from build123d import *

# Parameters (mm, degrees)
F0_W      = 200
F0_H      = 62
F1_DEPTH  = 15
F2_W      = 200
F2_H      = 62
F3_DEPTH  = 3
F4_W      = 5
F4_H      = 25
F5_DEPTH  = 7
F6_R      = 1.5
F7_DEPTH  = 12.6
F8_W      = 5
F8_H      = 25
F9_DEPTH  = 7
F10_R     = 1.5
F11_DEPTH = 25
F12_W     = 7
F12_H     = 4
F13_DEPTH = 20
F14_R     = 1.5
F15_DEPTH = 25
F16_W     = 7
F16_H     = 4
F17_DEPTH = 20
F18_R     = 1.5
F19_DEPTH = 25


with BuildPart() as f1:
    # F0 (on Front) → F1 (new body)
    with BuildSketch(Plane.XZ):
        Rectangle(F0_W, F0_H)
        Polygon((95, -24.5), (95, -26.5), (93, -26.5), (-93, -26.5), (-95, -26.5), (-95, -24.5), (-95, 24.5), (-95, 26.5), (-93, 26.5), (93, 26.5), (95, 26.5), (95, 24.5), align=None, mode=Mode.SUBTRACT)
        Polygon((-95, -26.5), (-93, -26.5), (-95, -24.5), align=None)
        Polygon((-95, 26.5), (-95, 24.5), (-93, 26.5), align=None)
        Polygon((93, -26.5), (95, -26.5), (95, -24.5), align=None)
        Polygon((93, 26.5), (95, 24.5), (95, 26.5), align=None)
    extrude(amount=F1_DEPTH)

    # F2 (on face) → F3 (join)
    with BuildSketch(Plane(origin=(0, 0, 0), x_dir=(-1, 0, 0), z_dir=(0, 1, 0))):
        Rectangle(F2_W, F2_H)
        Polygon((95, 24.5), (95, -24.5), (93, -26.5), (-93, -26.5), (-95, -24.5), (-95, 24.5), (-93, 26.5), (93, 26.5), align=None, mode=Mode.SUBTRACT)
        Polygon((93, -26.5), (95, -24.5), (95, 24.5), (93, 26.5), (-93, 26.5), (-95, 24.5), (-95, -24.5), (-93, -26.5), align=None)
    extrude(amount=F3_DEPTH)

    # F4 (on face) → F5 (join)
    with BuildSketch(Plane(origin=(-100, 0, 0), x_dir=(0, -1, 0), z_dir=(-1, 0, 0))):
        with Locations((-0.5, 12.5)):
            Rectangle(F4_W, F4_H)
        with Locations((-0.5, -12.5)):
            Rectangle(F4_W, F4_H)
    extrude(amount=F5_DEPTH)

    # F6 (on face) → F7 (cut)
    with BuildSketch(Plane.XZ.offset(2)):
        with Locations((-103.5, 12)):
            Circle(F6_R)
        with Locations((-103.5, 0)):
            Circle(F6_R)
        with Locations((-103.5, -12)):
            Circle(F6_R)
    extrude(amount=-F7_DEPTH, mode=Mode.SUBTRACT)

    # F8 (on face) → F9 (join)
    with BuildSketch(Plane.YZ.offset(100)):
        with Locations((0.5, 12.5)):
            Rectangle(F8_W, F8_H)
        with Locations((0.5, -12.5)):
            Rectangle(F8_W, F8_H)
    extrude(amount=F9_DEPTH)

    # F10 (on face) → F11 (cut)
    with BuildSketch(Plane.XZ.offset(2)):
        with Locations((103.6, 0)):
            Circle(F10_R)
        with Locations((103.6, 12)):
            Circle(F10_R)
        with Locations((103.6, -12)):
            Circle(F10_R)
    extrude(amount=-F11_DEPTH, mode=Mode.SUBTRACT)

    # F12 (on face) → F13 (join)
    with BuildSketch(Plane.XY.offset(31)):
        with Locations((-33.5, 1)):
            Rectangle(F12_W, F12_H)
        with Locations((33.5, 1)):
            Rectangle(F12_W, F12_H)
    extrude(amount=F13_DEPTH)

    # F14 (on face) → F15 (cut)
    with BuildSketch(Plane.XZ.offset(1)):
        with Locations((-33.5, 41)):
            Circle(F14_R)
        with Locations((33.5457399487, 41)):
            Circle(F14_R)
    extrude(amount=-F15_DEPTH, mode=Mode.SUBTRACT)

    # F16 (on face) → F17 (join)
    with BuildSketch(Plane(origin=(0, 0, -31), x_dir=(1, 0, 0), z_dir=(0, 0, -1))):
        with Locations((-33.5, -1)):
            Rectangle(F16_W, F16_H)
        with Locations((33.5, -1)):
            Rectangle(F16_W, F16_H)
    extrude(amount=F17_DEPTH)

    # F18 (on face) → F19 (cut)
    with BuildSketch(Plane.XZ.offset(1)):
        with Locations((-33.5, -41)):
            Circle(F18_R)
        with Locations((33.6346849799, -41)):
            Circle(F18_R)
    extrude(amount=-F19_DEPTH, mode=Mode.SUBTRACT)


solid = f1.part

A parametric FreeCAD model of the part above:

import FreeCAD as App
import Part
import Sketcher
from FreeCAD import Vector
Q = App.Units.Quantity


def add_polygon(sketch, points):
    """Adds a closed chain of lines whose ends are joined by coincident constraints."""
    first, n = sketch.GeometryCount, len(points)
    for a, b in zip(points, points[1:] + points[:1]):
        sketch.addGeometry(Part.LineSegment(App.Vector(*a, 0), App.Vector(*b, 0)), False)
    for i in range(n):
        sketch.addConstraint(Sketcher.Constraint("Coincident", first + i, 2, first + (i + 1) % n, 1))

doc = App.newDocument("Part")
body = doc.addObject("PartDesign::Body", "Body")

# Sketch on XZ plane
sketch1 = body.newObject("Sketcher::SketchObject", "Sketch")
sketch1.AttachmentSupport = (doc.getObject("XZ_Plane"), [""])
sketch1.MapMode = "FlatFace"
add_polygon(sketch1, [(-100, 31), (-100, -31), (100, -31), (100, 31)])  # lines 0-3
add_polygon(sketch1, [(95, 24.5), (95, -24.5), (93, -26.5), (-93, -26.5), (-95, -24.5), (-95, 24.5), (-93, 26.5), (93, 26.5)])  # lines 4-11
sketch1.addConstraint(Sketcher.Constraint("Vertical", 0))
sketch1.addConstraint(Sketcher.Constraint("Horizontal", 1))
sketch1.addConstraint(Sketcher.Constraint("Vertical", 2))
sketch1.addConstraint(Sketcher.Constraint("Horizontal", 3))
sketch1.addConstraint(Sketcher.Constraint("Vertical", 4))
sketch1.addConstraint(Sketcher.Constraint("Horizontal", 6))
sketch1.addConstraint(Sketcher.Constraint("Vertical", 8))
sketch1.addConstraint(Sketcher.Constraint("Horizontal", 10))
sketch1.addConstraint(Sketcher.Constraint("Symmetric", 0, 2, 2, 2, -1, 1))
sketch1.addConstraint(Sketcher.Constraint("Symmetric", 4, 2, 8, 2, -1, 1))
sketch1.addConstraint(Sketcher.Constraint("Symmetric", 5, 2, 9, 2, -1, 1))
sketch1.addConstraint(Sketcher.Constraint("Perpendicular", 5, 7))
sketch1.addConstraint(Sketcher.Constraint("Perpendicular", 9, 11))
sketch1.addConstraint(Sketcher.Constraint("Horizontal", 4, 2, 7, 2))
sketch1.addConstraint(Sketcher.Constraint("Horizontal", 8, 2, 11, 2))
sketch1.addConstraint(Sketcher.Constraint("Vertical", 6, 2, 9, 2))
sketch1.addConstraint(Sketcher.Constraint("DistanceX", 1, 1, 1, 2, Q("200 mm")))
sketch1.addConstraint(Sketcher.Constraint("DistanceX", 6, 2, 6, 1, Q("186 mm")))
sketch1.addConstraint(Sketcher.Constraint("DistanceY", 0, 2, 0, 1, Q("62 mm")))
sketch1.addConstraint(Sketcher.Constraint("DistanceY", 4, 2, 4, 1, Q("49 mm")))
sketch1.addConstraint(Sketcher.Constraint("DistanceX", -1, 1, 4, 2, Q("95 mm")))
pad1 = body.newObject("PartDesign::Pad", "Pad")
pad1.Profile = sketch1
pad1.Length = 15

# Sketch on XZ plane
sketch2 = body.newObject("Sketcher::SketchObject", "Sketch001")
sketch2.AttachmentSupport = (doc.getObject("XZ_Plane"), [""])
sketch2.MapMode = "FlatFace"
add_polygon(sketch2, [(100, 31), (100, -31), (-100, -31), (-100, 31)])  # lines 0-3
sketch2.addConstraint(Sketcher.Constraint("Vertical", 0))
sketch2.addConstraint(Sketcher.Constraint("Horizontal", 1))
sketch2.addConstraint(Sketcher.Constraint("Vertical", 2))
sketch2.addConstraint(Sketcher.Constraint("Horizontal", 3))
sketch2.addConstraint(Sketcher.Constraint("Symmetric", 0, 2, 2, 2, -1, 1))
sketch2.addConstraint(Sketcher.Constraint("DistanceX", 1, 2, 1, 1, Q("200 mm")))
sketch2.addConstraint(Sketcher.Constraint("DistanceY", 0, 2, 0, 1, Q("62 mm")))
pad2 = body.newObject("PartDesign::Pad", "Pad001")
pad2.Profile = sketch2
pad2.Length = 3
pad2.Reversed = True

# Sketch on YZ plane
sketch3 = body.newObject("Sketcher::SketchObject", "Sketch002")
sketch3.AttachmentSupport = (doc.getObject("YZ_Plane"), [""])
sketch3.MapMode = "FlatFace"
sketch3.AttachmentOffset = App.Placement(Vector(0, 0, -100), App.Rotation())
add_polygon(sketch3, [(3, 25), (3, -25), (-2, -25), (-2, 25)])  # lines 0-3
sketch3.addConstraint(Sketcher.Constraint("Vertical", 0))
sketch3.addConstraint(Sketcher.Constraint("Horizontal", 1))
sketch3.addConstraint(Sketcher.Constraint("Vertical", 2))
sketch3.addConstraint(Sketcher.Constraint("Horizontal", 3))
sketch3.addConstraint(Sketcher.Constraint("DistanceX", 1, 2, 1, 1, Q("5 mm")))
sketch3.addConstraint(Sketcher.Constraint("DistanceY", 0, 2, 0, 1, Q("50 mm")))
sketch3.addConstraint(Sketcher.Constraint("DistanceX", -1, 1, 0, 2, Q("3 mm")))
sketch3.addConstraint(Sketcher.Constraint("DistanceY", 0, 2, -1, 1, Q("25 mm")))
pad3 = body.newObject("PartDesign::Pad", "Pad002")
pad3.Profile = sketch3
pad3.Length = 7
pad3.Reversed = True

# Sketch on XZ plane
sketch4 = body.newObject("Sketcher::SketchObject", "Sketch003")
sketch4.AttachmentSupport = (doc.getObject("XZ_Plane"), [""])
sketch4.MapMode = "FlatFace"
sketch4.AttachmentOffset = App.Placement(Vector(0, 0, 2), App.Rotation())
sketch4.addGeometry(Part.Circle(Vector(-103.5, 12, 0), Vector(0, 0, 1), 1.5), False)
sketch4.addGeometry(Part.Circle(Vector(-103.5, 0, 0), Vector(0, 0, 1), 1.5), False)
sketch4.addGeometry(Part.Circle(Vector(-103.5, -12, 0), Vector(0, 0, 1), 1.5), False)
sketch4.addConstraint(Sketcher.Constraint("Equal", 0, 1))
sketch4.addConstraint(Sketcher.Constraint("Equal", 1, 2))
sketch4.addConstraint(Sketcher.Constraint("Symmetric", 0, 3, 2, 3, -1))
sketch4.addConstraint(Sketcher.Constraint("PointOnObject", 1, 3, -1))
sketch4.addConstraint(Sketcher.Constraint("Vertical", 0, 3, 1, 3))
sketch4.addConstraint(Sketcher.Constraint("Diameter", 0, Q("3 mm")))
sketch4.addConstraint(Sketcher.Constraint("DistanceY", -1, 1, 0, 3, Q("12 mm")))
sketch4.addConstraint(Sketcher.Constraint("DistanceX", 0, 3, -1, 1, Q("103.5 mm")))
pocket1 = body.newObject("PartDesign::Pocket", "Pocket")
pocket1.Profile = sketch4
pocket1.Length = 12.6

# Sketch on YZ plane
sketch5 = body.newObject("Sketcher::SketchObject", "Sketch004")
sketch5.AttachmentSupport = (doc.getObject("YZ_Plane"), [""])
sketch5.MapMode = "FlatFace"
sketch5.AttachmentOffset = App.Placement(Vector(0, 0, 100), App.Rotation())
add_polygon(sketch5, [(-2, 25), (-2, -25), (3, -25), (3, 25)])  # lines 0-3
sketch5.addConstraint(Sketcher.Constraint("Vertical", 0))
sketch5.addConstraint(Sketcher.Constraint("Horizontal", 1))
sketch5.addConstraint(Sketcher.Constraint("Vertical", 2))
sketch5.addConstraint(Sketcher.Constraint("Horizontal", 3))
sketch5.addConstraint(Sketcher.Constraint("DistanceX", 1, 1, 1, 2, Q("5 mm")))
sketch5.addConstraint(Sketcher.Constraint("DistanceY", 0, 2, 0, 1, Q("50 mm")))
sketch5.addConstraint(Sketcher.Constraint("DistanceX", 0, 2, -1, 1, Q("2 mm")))
sketch5.addConstraint(Sketcher.Constraint("DistanceY", 0, 2, -1, 1, Q("25 mm")))
pad4 = body.newObject("PartDesign::Pad", "Pad003")
pad4.Profile = sketch5
pad4.Length = 7

# Sketch on XZ plane
sketch6 = body.newObject("Sketcher::SketchObject", "Sketch005")
sketch6.AttachmentSupport = (doc.getObject("XZ_Plane"), [""])
sketch6.MapMode = "FlatFace"
sketch6.AttachmentOffset = App.Placement(Vector(0, 0, 2), App.Rotation())
sketch6.addGeometry(Part.Circle(Vector(103.6, 0, 0), Vector(0, 0, 1), 1.5), False)
sketch6.addGeometry(Part.Circle(Vector(103.6, 12, 0), Vector(0, 0, 1), 1.5), False)
sketch6.addGeometry(Part.Circle(Vector(103.6, -12, 0), Vector(0, 0, 1), 1.5), False)
sketch6.addConstraint(Sketcher.Constraint("Equal", 0, 1))
sketch6.addConstraint(Sketcher.Constraint("Equal", 1, 2))
sketch6.addConstraint(Sketcher.Constraint("Symmetric", 1, 3, 2, 3, -1))
sketch6.addConstraint(Sketcher.Constraint("PointOnObject", 0, 3, -1))
sketch6.addConstraint(Sketcher.Constraint("Vertical", 0, 3, 1, 3))
sketch6.addConstraint(Sketcher.Constraint("Diameter", 0, Q("3 mm")))
sketch6.addConstraint(Sketcher.Constraint("DistanceY", -1, 1, 1, 3, Q("12 mm")))
sketch6.addConstraint(Sketcher.Constraint("DistanceX", -1, 1, 0, 3, Q("103.6 mm")))
pocket2 = body.newObject("PartDesign::Pocket", "Pocket001")
pocket2.Profile = sketch6
pocket2.Length = 25

# Sketch on XY plane
sketch7 = body.newObject("Sketcher::SketchObject", "Sketch006")
sketch7.AttachmentSupport = (doc.getObject("XY_Plane"), [""])
sketch7.MapMode = "FlatFace"
sketch7.AttachmentOffset = App.Placement(Vector(0, 0, 31), App.Rotation())
add_polygon(sketch7, [(-37, 3), (-37, -1), (-30, -1), (-30, 3)])  # lines 0-3
add_polygon(sketch7, [(30, 3), (30, -1), (37, -1), (37, 3)])  # lines 4-7
sketch7.addConstraint(Sketcher.Constraint("Vertical", 0))
sketch7.addConstraint(Sketcher.Constraint("Horizontal", 1))
sketch7.addConstraint(Sketcher.Constraint("Vertical", 2))
sketch7.addConstraint(Sketcher.Constraint("Horizontal", 3))
sketch7.addConstraint(Sketcher.Constraint("Vertical", 4))
sketch7.addConstraint(Sketcher.Constraint("Horizontal", 5))
sketch7.addConstraint(Sketcher.Constraint("Vertical", 6))
sketch7.addConstraint(Sketcher.Constraint("Horizontal", 7))
sketch7.addConstraint(Sketcher.Constraint("Symmetric", 1, 2, 4, 2, -2))
sketch7.addConstraint(Sketcher.Constraint("Symmetric", 3, 2, 6, 2, -2))
sketch7.addConstraint(Sketcher.Constraint("DistanceX", 1, 1, 1, 2, Q("7 mm")))
sketch7.addConstraint(Sketcher.Constraint("DistanceY", 0, 2, 0, 1, Q("4 mm")))
sketch7.addConstraint(Sketcher.Constraint("DistanceX", 0, 2, -1, 1, Q("37 mm")))
sketch7.addConstraint(Sketcher.Constraint("DistanceY", 0, 2, -1, 1, Q("1 mm")))
pad5 = body.newObject("PartDesign::Pad", "Pad004")
pad5.Profile = sketch7
pad5.Length = 20

# Sketch on XZ plane
sketch8 = body.newObject("Sketcher::SketchObject", "Sketch007")
sketch8.AttachmentSupport = (doc.getObject("XZ_Plane"), [""])
sketch8.MapMode = "FlatFace"
sketch8.AttachmentOffset = App.Placement(Vector(0, 0, 1), App.Rotation())
sketch8.addGeometry(Part.Circle(Vector(-33.5, 41, 0), Vector(0, 0, 1), 1.5), False)
sketch8.addGeometry(Part.Circle(Vector(33.54574, 41, 0), Vector(0, 0, 1), 1.5), False)
sketch8.addConstraint(Sketcher.Constraint("Equal", 0, 1))
sketch8.addConstraint(Sketcher.Constraint("Horizontal", 0, 3, 1, 3))
sketch8.addConstraint(Sketcher.Constraint("Diameter", 0, Q("3 mm")))
sketch8.addConstraint(Sketcher.Constraint("DistanceY", -1, 1, 0, 3, Q("41 mm")))
sketch8.addConstraint(Sketcher.Constraint("DistanceX", 0, 3, -1, 1, Q("33.5 mm")))
sketch8.addConstraint(Sketcher.Constraint("DistanceX", -1, 1, 1, 3, Q("33.54574 mm")))
pocket3 = body.newObject("PartDesign::Pocket", "Pocket002")
pocket3.Profile = sketch8
pocket3.Length = 25

# Sketch on XY plane
sketch9 = body.newObject("Sketcher::SketchObject", "Sketch008")
sketch9.AttachmentSupport = (doc.getObject("XY_Plane"), [""])
sketch9.MapMode = "FlatFace"
sketch9.AttachmentOffset = App.Placement(Vector(0, 0, -31), App.Rotation())
add_polygon(sketch9, [(-37, -1), (-37, 3), (-30, 3), (-30, -1)])  # lines 0-3
add_polygon(sketch9, [(30, -1), (30, 3), (37, 3), (37, -1)])  # lines 4-7
sketch9.addConstraint(Sketcher.Constraint("Vertical", 0))
sketch9.addConstraint(Sketcher.Constraint("Horizontal", 1))
sketch9.addConstraint(Sketcher.Constraint("Vertical", 2))
sketch9.addConstraint(Sketcher.Constraint("Horizontal", 3))
sketch9.addConstraint(Sketcher.Constraint("Vertical", 4))
sketch9.addConstraint(Sketcher.Constraint("Horizontal", 5))
sketch9.addConstraint(Sketcher.Constraint("Vertical", 6))
sketch9.addConstraint(Sketcher.Constraint("Horizontal", 7))
sketch9.addConstraint(Sketcher.Constraint("Symmetric", 1, 2, 4, 2, -2))
sketch9.addConstraint(Sketcher.Constraint("Symmetric", 3, 2, 6, 2, -2))
sketch9.addConstraint(Sketcher.Constraint("DistanceX", 1, 1, 1, 2, Q("7 mm")))
sketch9.addConstraint(Sketcher.Constraint("DistanceY", 0, 1, 0, 2, Q("4 mm")))
sketch9.addConstraint(Sketcher.Constraint("DistanceX", 0, 2, -1, 1, Q("37 mm")))
sketch9.addConstraint(Sketcher.Constraint("DistanceY", -1, 1, 0, 2, Q("3 mm")))
pad6 = body.newObject("PartDesign::Pad", "Pad005")
pad6.Profile = sketch9
pad6.Length = 20
pad6.Reversed = True

# Sketch on XZ plane
sketch10 = body.newObject("Sketcher::SketchObject", "Sketch009")
sketch10.AttachmentSupport = (doc.getObject("XZ_Plane"), [""])
sketch10.MapMode = "FlatFace"
sketch10.AttachmentOffset = App.Placement(Vector(0, 0, 1), App.Rotation())
sketch10.addGeometry(Part.Circle(Vector(-33.5, -41, 0), Vector(0, 0, 1), 1.5), False)
sketch10.addGeometry(Part.Circle(Vector(33.634685, -41, 0), Vector(0, 0, 1), 1.5), False)
sketch10.addConstraint(Sketcher.Constraint("Equal", 0, 1))
sketch10.addConstraint(Sketcher.Constraint("Horizontal", 0, 3, 1, 3))
sketch10.addConstraint(Sketcher.Constraint("Diameter", 0, Q("3 mm")))
sketch10.addConstraint(Sketcher.Constraint("DistanceY", 0, 3, -1, 1, Q("41 mm")))
sketch10.addConstraint(Sketcher.Constraint("DistanceX", 0, 3, -1, 1, Q("33.5 mm")))
sketch10.addConstraint(Sketcher.Constraint("DistanceX", -1, 1, 1, 3, Q("33.634685 mm")))
pocket4 = body.newObject("PartDesign::Pocket", "Pocket003")
pocket4.Profile = sketch10
pocket4.Length = 25

doc.recompute()
